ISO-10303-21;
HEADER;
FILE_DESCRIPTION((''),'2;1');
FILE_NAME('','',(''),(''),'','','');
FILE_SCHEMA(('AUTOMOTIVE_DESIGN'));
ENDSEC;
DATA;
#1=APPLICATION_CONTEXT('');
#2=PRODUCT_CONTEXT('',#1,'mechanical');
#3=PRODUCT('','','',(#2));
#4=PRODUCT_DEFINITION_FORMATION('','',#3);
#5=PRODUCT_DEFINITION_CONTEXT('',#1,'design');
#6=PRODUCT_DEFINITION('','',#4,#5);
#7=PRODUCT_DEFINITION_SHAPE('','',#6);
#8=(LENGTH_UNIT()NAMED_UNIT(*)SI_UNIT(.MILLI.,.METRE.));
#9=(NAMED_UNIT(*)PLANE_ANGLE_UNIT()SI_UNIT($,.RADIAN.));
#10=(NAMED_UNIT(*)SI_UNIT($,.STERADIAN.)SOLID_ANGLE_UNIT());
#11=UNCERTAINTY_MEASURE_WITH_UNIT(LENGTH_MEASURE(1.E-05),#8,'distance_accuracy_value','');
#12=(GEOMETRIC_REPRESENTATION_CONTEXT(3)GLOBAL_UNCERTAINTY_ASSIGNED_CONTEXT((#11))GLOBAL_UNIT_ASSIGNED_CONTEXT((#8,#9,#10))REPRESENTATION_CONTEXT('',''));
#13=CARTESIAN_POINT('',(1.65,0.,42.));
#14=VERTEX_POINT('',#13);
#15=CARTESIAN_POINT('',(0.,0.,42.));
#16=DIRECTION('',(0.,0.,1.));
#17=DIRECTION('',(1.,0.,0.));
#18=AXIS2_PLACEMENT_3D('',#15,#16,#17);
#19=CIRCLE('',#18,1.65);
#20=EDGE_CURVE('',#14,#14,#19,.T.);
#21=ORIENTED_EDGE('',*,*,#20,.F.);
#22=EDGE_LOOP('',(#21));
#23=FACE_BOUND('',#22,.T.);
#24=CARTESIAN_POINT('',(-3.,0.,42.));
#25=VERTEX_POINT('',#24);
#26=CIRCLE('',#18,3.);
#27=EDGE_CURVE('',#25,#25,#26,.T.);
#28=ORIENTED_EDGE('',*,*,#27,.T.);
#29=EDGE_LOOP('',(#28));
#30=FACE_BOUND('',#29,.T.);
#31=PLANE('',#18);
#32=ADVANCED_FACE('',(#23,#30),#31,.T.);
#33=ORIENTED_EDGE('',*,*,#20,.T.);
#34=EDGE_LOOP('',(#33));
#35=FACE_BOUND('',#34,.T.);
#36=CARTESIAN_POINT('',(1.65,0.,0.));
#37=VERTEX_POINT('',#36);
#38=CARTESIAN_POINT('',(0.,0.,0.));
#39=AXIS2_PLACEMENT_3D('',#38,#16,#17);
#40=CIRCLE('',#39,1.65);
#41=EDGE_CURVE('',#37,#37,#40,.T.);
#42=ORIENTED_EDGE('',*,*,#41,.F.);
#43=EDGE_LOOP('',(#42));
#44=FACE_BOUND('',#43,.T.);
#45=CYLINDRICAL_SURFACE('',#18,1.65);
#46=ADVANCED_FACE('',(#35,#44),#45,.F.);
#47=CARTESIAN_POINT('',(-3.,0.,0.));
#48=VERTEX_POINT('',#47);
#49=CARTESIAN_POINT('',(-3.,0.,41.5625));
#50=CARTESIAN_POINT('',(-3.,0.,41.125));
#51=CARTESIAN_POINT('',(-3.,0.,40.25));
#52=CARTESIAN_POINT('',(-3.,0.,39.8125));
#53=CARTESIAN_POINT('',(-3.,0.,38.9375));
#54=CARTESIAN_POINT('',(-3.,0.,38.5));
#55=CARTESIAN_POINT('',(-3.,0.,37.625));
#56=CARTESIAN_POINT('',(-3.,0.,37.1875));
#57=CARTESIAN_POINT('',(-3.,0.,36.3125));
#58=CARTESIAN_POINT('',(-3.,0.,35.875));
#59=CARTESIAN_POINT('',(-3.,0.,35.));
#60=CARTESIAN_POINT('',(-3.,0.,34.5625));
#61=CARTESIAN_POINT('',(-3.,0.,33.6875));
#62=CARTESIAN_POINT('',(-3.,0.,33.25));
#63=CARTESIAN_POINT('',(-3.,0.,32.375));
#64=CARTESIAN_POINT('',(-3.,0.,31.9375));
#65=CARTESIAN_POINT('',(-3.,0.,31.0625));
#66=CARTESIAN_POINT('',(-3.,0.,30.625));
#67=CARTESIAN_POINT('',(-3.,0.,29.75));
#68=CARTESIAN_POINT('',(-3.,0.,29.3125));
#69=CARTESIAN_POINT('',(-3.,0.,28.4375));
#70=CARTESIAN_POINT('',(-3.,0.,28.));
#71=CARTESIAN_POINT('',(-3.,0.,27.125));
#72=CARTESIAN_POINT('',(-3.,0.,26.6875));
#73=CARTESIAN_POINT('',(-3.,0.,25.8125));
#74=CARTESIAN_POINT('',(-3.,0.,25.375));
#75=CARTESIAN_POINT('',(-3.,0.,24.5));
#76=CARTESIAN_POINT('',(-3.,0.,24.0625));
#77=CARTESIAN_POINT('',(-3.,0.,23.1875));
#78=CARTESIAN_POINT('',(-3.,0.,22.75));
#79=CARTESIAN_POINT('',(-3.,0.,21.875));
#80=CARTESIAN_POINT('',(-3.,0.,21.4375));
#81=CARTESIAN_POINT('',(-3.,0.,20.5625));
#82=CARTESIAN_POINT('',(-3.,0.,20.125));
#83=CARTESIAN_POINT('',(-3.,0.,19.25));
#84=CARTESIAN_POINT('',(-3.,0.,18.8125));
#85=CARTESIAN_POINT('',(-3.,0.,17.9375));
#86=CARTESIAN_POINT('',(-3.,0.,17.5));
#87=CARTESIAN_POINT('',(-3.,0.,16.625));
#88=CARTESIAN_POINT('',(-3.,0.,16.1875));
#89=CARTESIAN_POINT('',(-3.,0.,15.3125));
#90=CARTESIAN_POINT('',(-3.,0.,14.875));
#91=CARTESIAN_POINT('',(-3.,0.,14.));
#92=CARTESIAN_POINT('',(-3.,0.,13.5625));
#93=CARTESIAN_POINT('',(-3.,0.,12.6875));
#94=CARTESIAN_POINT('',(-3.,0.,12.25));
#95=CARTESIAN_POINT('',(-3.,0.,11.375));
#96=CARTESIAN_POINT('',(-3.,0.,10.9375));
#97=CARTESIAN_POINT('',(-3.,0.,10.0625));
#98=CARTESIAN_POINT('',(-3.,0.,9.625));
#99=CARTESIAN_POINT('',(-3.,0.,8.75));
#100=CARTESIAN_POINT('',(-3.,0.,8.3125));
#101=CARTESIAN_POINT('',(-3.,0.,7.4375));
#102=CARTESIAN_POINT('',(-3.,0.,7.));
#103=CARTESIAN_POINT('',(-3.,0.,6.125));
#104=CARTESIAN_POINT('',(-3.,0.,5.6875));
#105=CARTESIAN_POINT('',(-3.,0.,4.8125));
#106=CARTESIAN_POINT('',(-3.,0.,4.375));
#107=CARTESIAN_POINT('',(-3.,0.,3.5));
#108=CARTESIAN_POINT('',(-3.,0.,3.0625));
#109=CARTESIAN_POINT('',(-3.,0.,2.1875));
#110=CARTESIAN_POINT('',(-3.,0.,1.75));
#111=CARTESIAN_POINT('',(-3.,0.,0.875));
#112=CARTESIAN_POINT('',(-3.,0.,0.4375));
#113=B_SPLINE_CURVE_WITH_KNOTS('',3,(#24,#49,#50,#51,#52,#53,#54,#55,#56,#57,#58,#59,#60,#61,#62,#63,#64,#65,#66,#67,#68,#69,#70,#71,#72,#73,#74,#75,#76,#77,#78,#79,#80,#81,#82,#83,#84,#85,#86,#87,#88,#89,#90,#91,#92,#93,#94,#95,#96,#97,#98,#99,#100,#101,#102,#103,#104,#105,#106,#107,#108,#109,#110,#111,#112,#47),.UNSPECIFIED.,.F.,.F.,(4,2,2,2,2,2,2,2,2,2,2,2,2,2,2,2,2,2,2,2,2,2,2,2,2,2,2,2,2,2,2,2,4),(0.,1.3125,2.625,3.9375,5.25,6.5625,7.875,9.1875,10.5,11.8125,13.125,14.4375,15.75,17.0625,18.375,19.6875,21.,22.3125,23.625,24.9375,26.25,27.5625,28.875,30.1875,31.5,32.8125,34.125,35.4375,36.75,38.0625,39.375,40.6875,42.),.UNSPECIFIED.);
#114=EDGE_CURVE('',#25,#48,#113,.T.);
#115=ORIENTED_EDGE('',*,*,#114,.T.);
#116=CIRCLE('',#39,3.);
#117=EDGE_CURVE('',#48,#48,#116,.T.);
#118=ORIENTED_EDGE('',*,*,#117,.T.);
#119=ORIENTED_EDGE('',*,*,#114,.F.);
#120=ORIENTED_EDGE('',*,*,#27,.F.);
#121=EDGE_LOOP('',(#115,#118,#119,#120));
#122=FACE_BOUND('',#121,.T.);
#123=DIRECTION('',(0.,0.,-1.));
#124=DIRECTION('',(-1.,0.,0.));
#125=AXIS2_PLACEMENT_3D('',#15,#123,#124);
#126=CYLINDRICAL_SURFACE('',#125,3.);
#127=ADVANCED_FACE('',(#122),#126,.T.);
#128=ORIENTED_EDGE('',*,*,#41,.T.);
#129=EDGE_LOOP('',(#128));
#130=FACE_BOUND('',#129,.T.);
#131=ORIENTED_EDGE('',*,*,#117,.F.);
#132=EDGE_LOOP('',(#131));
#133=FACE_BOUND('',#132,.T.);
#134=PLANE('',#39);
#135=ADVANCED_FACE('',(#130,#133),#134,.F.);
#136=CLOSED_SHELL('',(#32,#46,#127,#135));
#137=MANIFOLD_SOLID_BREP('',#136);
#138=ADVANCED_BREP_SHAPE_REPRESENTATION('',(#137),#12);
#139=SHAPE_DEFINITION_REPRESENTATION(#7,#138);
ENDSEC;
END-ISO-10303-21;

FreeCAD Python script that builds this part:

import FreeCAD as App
import Part
import Sketcher

V = App.Vector

doc = App.newDocument("Part")
body = doc.addObject("PartDesign::Body", "Body")

# Sketch on XY plane
sketch1 = body.newObject("Sketcher::SketchObject", "Sketch")
sketch1.AttachmentSupport = (doc.getObject("XY_Plane"), [""])
sketch1.MapMode = "FlatFace"
sketch1.addGeometry(Part.Circle(V(0, 0, 0), V(0, 0, 1), 3), False)
sketch1.addConstraint(Sketcher.Constraint("Coincident", 0, 3, -1, 1))
sketch1.addConstraint(Sketcher.Constraint("Diameter", 0, 6.0))
pad1 = body.newObject("PartDesign::Pad", "Pad")
pad1.Profile = sketch1
pad1.Length = 42

# Sketch on XY plane
sketch2 = body.newObject("Sketcher::SketchObject", "Sketch001")
sketch2.AttachmentSupport = (doc.getObject("XY_Plane"), [""])
sketch2.MapMode = "FlatFace"
sketch2.AttachmentOffset = App.Placement(V(0, 0, 42), App.Rotation())
sketch2.addGeometry(Part.Circle(V(0, 0, 0), V(0, 0, 1), 1.65), False)
sketch2.addConstraint(Sketcher.Constraint("Coincident", 0, 3, -1, 1))
sketch2.addConstraint(Sketcher.Constraint("Diameter", 0, 3.3))
doc.recompute()
hole = body.newObject("PartDesign::Hole", "Hole")
hole.Profile = sketch2
hole.ThreadType = "None"
hole.Diameter = 3.3
hole.DepthType = "ThroughAll"

doc.recompute()
